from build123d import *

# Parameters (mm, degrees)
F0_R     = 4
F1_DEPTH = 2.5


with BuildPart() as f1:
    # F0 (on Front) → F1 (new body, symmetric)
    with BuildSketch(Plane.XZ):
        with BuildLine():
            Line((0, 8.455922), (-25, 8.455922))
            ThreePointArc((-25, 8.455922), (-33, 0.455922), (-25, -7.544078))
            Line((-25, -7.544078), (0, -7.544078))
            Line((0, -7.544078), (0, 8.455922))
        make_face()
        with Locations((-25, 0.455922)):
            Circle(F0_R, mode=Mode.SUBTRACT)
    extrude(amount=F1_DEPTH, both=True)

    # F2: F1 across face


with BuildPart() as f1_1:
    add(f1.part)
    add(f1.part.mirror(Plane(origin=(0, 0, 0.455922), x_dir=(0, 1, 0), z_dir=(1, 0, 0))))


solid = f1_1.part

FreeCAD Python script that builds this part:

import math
import FreeCAD as App
import Part
import Sketcher

doc = App.newDocument("Part")
body = doc.addObject("PartDesign::Body", "Body")

# Sketch on XZ plane
sketch1 = body.newObject("Sketcher::SketchObject", "Sketch")
sketch1.AttachmentSupport = (doc.getObject("XZ_Plane"), [""])
sketch1.MapMode = "FlatFace"
sketch1.addGeometry(Part.LineSegment(App.Vector(0, 8.5, 0), App.Vector(-25, 8.5, 0)), False)
sketch1.addGeometry(Part.ArcOfCircle(Part.Circle(App.Vector(-25, 0.5, 0), App.Vector(0, 0, 1), 8), math.radians(90), math.radians(270)), False)
sketch1.addGeometry(Part.LineSegment(App.Vector(-25, -7.5, 0), App.Vector(0, -7.5, 0)), False)
sketch1.addGeometry(Part.LineSegment(App.Vector(0, -7.5, 0), App.Vector(0, 8.5, 0)), False)
sketch1.addGeometry(Part.Circle(App.Vector(-25, 0.5, 0), App.Vector(0, 0, 1), 4), False)
sketch1.addConstraint(Sketcher.Constraint("Tangent", 0, 2, 1, 1))
sketch1.addConstraint(Sketcher.Constraint("Tangent", 1, 2, 2, 1))
sketch1.addConstraint(Sketcher.Constraint("Coincident", 2, 2, 3, 1))
sketch1.addConstraint(Sketcher.Constraint("Coincident", 3, 2, 0, 1))
sketch1.addConstraint(Sketcher.Constraint("Horizontal", 0))
sketch1.addConstraint(Sketcher.Constraint("Horizontal", 2))
sketch1.addConstraint(Sketcher.Constraint("Vertical", 3))
sketch1.addConstraint(Sketcher.Constraint("Coincident", 4, 3, 1, 3))
sketch1.addConstraint(Sketcher.Constraint("PointOnObject", 2, 2, -2))
sketch1.addConstraint(Sketcher.Constraint("Diameter", 4, 8.0))
sketch1.addConstraint(Sketcher.Constraint("Radius", 1, 8.0))
sketch1.addConstraint(Sketcher.Constraint("DistanceX", 0, 2, 0, 1, 25.0))
sketch1.addConstraint(Sketcher.Constraint("DistanceY", -1, 1, 0, 2, 8.455922))
pad1 = body.newObject("PartDesign::Pad", "Pad")
pad1.Profile = sketch1
pad1.Length = 5
pad1.Midplane = True
body2 = doc.addObject("PartDesign::Body", "Body001")
doc.recompute()

body2.BaseFeature = body
doc.recompute()

mirroring = doc.addObject("Part::Mirroring", "Mirroring")
mirroring.Source = body
mirroring.Base = App.Vector(0, 0, 0.455922)
mirroring.Normal = App.Vector(1, 0, 0)
body3 = doc.addObject("PartDesign::Body", "Body002")
body3.BaseFeature = mirroring
boolean = body2.newObject("PartDesign::Boolean", "Boolean")
boolean.Type = "Fuse"
boolean.addObjects([body3])
doc.recompute()
mirroring.Visibility = False

doc.recompute()
